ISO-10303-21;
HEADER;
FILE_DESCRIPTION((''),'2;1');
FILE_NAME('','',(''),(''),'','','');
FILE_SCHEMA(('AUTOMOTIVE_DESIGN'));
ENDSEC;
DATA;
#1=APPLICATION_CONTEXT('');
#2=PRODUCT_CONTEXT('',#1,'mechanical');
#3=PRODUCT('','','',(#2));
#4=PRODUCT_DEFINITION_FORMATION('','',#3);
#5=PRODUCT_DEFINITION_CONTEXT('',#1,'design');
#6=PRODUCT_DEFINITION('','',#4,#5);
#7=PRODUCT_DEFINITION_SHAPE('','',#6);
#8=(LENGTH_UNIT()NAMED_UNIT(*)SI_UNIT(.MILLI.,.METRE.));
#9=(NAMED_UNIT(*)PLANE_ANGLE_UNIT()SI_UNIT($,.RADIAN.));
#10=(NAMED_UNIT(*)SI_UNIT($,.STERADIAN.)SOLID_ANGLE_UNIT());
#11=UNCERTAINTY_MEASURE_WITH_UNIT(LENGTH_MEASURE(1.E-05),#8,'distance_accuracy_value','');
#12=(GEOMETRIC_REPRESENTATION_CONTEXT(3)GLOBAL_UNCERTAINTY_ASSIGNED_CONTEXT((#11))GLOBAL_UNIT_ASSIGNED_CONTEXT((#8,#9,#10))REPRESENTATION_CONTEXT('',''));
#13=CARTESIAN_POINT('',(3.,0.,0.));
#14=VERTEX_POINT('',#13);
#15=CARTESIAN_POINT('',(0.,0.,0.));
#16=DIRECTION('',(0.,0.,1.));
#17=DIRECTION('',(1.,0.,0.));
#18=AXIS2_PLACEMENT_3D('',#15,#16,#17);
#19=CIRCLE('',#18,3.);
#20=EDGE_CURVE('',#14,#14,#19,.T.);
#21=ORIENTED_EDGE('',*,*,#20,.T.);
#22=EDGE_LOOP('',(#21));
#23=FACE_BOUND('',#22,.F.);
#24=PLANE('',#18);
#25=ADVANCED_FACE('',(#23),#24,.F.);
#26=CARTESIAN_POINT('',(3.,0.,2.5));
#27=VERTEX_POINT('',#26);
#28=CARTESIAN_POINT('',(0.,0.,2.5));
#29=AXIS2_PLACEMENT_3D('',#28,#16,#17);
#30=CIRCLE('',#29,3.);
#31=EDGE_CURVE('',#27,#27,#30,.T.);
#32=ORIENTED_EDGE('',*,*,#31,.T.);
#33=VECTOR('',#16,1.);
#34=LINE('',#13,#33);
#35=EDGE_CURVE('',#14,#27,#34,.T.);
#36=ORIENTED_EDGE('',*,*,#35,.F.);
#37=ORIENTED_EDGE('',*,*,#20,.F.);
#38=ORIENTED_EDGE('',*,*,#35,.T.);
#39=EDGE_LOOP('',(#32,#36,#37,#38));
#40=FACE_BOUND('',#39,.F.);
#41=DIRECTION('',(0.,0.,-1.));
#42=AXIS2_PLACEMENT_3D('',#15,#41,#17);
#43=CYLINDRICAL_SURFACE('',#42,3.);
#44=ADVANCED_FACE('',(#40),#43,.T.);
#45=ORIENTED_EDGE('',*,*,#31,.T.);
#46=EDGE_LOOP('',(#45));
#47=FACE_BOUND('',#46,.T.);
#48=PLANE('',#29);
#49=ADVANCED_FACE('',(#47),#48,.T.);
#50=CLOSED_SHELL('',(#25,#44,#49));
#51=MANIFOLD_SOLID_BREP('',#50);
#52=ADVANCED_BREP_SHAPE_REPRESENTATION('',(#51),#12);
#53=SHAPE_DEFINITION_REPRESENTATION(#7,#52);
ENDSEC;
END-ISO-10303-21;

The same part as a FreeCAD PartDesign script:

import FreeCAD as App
import Part
import Sketcher
from FreeCAD import Vector
Q = App.Units.Quantity

doc = App.newDocument("Part")
body = doc.addObject("PartDesign::Body", "Body")

sketch1 = doc.addObject("Sketcher::SketchObject", "Sketch")
body.addObject(sketch1)
sketch1.AttachmentSupport = (doc.XY_Plane, [""])
sketch1.MapMode = "FlatFace"
sketch1.addGeometry(Part.Circle(Vector(0, 0, 0), Vector(0, 0, 1), 3), False)
sketch1.addConstraint(Sketcher.Constraint("Coincident", 0, 3, -1, 1))
sketch1.addConstraint(Sketcher.Constraint("Diameter", 0, Q("6 mm")))
pad1 = doc.addObject("PartDesign::Pad", "Pad")
body.addObject(pad1)
pad1.Profile = sketch1
pad1.Length = 2.5

doc.recompute()
